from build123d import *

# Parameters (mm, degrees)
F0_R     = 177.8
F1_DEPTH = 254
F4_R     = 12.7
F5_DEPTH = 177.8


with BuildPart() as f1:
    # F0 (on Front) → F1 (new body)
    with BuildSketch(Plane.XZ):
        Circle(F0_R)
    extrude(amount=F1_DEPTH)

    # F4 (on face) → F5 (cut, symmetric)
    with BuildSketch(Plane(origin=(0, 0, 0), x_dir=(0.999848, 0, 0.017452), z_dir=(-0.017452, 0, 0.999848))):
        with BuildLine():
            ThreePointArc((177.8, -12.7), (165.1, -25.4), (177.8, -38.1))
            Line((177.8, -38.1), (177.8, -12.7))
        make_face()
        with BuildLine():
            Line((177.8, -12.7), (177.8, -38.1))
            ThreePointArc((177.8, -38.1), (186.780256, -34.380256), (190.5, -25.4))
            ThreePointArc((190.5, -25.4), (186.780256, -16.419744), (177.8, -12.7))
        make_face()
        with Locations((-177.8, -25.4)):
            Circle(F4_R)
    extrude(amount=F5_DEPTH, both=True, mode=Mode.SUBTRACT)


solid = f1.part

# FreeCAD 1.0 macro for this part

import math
import FreeCAD as App
import Part
import Sketcher
Q = App.Units.Quantity

doc = App.newDocument("Part")
body = doc.addObject("PartDesign::Body", "Body")

# Sketch on XZ plane
sketch1 = body.newObject("Sketcher::SketchObject", "Sketch")
sketch1.AttachmentSupport = (doc.getObject("XZ_Plane"), [""])
sketch1.MapMode = "FlatFace"
sketch1.addGeometry(Part.Circle(App.Vector(0, 0, 0), App.Vector(0, 0, 1), 178), False)
sketch1.addConstraint([
    Sketcher.Constraint("Coincident", 0, 3, -1, 1),
    Sketcher.Constraint("Diameter", 0, Q("14 in")),
])
pad1 = body.newObject("PartDesign::Pad", "Pad")
pad1.Profile = sketch1
pad1.Length = Q("10 in")

# Sketch on an angled plane
sketch2 = body.newObject("Sketcher::SketchObject", "Sketch001")
sketch2.Placement = App.Placement(App.Vector(0, 0, 0), App.Rotation(App.Vector(0.999847702, 0, 0.017451995), App.Vector(0, 0.999999999, 0), App.Vector(-0.017451995, 0, 0.999847702), "ZXY"))
sketch2.addGeometry([
    Part.ArcOfCircle(Part.Circle(App.Vector(178, -25, 0), App.Vector(0, 0, 1), 13), math.radians(90), math.radians(270)),
    Part.ArcOfCircle(Part.Circle(App.Vector(178, -25, 0), App.Vector(0, 0, 1), 13), math.radians(-90), math.radians(0)),
    Part.ArcOfCircle(Part.Circle(App.Vector(178, -25, 0), App.Vector(0, 0, 1), 13), math.radians(0), math.radians(90)),
    Part.Circle(App.Vector(-178, -25, 0), App.Vector(0, 0, 1), 13),
], False)
sketch2.addConstraint([
    Sketcher.Constraint("Tangent", 0, 2, 1, 1),
    Sketcher.Constraint("Tangent", 1, 2, 2, 1),
    Sketcher.Constraint("Tangent", 2, 2, 0, 1),
    Sketcher.Constraint("Equal", 2, 3),
    Sketcher.Constraint("Symmetric", 0, 3, 3, 3, -2),
    Sketcher.Constraint("Horizontal", 3, 3, 1, 2),
    Sketcher.Constraint("Vertical", 2, 3, 0, 2),
    Sketcher.Constraint("Vertical", 0, 2, 2, 2),
    Sketcher.Constraint("Diameter", 3, Q("1 in")),
    Sketcher.Constraint("DistanceX", -1, 1, 0, 3, Q("7 in")),
    Sketcher.Constraint("DistanceY", 0, 3, -1, 1, Q("1 in")),
])
pocket1 = body.newObject("PartDesign::Pocket", "Pocket")
pocket1.Profile = sketch2
pocket1.Length = Q("14 in")
pocket1.Midplane = True

doc.recompute()
